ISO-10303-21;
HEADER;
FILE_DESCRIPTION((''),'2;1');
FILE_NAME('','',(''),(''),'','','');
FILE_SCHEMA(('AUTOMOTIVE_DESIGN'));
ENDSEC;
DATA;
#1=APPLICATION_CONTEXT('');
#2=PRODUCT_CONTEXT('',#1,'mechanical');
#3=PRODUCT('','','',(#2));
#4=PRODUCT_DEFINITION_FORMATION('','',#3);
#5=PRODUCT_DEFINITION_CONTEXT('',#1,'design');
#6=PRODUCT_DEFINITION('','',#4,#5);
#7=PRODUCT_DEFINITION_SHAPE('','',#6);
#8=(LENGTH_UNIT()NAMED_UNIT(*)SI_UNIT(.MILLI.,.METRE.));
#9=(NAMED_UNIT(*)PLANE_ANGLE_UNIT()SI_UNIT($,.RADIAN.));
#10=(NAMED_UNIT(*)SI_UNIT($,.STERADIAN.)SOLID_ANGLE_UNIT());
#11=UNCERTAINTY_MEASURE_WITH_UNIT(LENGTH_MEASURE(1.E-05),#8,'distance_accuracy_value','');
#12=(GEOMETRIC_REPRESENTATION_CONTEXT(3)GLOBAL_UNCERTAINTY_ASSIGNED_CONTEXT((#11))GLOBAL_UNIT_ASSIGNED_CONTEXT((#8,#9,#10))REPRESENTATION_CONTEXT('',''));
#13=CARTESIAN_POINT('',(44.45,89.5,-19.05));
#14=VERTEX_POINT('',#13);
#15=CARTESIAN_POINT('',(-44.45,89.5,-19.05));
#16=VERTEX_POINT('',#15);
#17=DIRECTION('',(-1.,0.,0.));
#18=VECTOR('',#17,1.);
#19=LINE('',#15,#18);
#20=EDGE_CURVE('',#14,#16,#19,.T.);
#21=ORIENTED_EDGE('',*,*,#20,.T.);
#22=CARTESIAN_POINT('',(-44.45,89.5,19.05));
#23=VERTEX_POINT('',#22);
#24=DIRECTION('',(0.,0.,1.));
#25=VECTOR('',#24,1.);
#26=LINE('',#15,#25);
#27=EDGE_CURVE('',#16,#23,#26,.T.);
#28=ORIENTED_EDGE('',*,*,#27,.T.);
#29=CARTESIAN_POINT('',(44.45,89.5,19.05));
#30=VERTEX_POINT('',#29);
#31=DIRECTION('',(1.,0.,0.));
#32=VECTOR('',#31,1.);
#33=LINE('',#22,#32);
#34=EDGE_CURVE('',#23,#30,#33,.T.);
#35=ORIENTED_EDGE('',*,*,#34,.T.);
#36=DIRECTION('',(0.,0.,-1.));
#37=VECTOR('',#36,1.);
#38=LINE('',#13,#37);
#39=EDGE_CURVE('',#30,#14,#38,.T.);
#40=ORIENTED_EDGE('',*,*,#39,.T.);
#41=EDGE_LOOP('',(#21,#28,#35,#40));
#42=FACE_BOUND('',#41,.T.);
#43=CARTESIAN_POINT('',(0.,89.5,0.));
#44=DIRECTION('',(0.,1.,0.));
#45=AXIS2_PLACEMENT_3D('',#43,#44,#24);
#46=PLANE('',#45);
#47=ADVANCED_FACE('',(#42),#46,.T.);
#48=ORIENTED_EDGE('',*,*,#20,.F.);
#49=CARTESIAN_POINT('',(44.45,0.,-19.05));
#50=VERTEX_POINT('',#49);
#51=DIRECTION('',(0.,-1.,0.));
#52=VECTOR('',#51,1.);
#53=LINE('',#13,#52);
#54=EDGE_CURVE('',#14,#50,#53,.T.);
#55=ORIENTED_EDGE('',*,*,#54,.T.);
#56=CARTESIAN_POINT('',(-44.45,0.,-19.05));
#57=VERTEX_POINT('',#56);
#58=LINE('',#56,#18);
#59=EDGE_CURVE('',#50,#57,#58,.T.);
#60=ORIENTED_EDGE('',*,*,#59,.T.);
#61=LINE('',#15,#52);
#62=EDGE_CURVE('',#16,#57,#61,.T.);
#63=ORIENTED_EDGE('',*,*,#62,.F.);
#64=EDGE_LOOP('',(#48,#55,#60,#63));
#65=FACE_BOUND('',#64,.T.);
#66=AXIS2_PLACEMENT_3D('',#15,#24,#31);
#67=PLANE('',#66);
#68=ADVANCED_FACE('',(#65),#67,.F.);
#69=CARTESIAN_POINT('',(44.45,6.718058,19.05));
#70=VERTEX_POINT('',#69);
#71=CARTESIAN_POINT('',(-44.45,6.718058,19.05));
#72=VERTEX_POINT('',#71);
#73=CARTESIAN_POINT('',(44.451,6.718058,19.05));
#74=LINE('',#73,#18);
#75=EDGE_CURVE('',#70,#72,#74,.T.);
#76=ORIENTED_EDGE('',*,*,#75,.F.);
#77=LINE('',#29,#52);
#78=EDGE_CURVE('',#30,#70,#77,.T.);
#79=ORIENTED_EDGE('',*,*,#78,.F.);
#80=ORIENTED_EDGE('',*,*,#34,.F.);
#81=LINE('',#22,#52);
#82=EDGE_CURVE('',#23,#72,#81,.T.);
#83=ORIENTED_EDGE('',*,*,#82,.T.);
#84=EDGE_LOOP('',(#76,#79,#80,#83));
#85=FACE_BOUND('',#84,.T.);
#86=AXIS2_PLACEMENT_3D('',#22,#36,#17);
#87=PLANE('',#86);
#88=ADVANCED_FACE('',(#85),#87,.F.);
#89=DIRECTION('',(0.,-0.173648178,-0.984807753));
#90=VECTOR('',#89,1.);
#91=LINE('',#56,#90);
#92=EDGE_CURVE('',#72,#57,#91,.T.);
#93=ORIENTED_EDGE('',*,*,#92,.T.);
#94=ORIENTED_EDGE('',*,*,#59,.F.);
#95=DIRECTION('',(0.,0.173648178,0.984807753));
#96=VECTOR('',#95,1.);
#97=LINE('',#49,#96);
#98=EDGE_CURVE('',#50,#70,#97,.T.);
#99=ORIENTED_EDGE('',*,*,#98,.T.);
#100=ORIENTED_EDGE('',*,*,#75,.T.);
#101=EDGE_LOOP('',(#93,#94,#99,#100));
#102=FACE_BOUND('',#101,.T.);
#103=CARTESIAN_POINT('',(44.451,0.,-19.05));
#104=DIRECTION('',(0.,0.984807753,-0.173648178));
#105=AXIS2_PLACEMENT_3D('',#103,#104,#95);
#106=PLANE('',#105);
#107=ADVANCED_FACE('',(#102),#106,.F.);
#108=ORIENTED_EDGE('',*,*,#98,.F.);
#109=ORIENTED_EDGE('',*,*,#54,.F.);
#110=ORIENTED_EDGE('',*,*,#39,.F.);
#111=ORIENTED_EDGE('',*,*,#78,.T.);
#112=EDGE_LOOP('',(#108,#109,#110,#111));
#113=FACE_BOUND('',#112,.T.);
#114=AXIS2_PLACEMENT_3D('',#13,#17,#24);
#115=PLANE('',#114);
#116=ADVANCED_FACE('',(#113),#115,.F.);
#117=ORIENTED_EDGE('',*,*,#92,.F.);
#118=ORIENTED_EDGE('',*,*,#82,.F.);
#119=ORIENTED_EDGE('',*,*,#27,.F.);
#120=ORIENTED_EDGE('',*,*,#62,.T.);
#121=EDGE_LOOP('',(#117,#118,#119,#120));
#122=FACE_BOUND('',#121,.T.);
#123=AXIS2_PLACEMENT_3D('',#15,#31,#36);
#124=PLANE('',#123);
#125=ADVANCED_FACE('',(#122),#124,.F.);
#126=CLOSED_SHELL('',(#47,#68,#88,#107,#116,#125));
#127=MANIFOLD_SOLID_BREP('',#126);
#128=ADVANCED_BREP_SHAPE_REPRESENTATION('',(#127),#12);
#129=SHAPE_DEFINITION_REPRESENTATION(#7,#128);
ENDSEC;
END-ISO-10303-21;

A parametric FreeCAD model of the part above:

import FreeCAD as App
import Part
import Sketcher
from FreeCAD import Vector
Q = App.Units.Quantity

doc = App.newDocument("Part")
body = doc.addObject("PartDesign::Body", "Body")

sketch1 = body.newObject("Sketcher::SketchObject", "Sketch")
sketch1.AttachmentSupport = (doc.getObject("XZ_Plane"), [""])
sketch1.MapMode = "FlatFace"
sketch1.addGeometry([
    Part.LineSegment(Vector(-44, -19, 0), Vector(-44, 19, 0)),
    Part.LineSegment(Vector(-44, 19, 0), Vector(44, 19, 0)),
    Part.LineSegment(Vector(44, 19, 0), Vector(44, -19, 0)),
    Part.LineSegment(Vector(44, -19, 0), Vector(-44, -19, 0)),
], False)
sketch1.addConstraint([
    Sketcher.Constraint("Coincident", 0, 2, 1, 1),
    Sketcher.Constraint("Coincident", 1, 2, 2, 1),
    Sketcher.Constraint("Coincident", 2, 2, 3, 1),
    Sketcher.Constraint("Coincident", 3, 2, 0, 1),
    Sketcher.Constraint("Vertical", 0),
    Sketcher.Constraint("Horizontal", 1),
    Sketcher.Constraint("Vertical", 2),
    Sketcher.Constraint("Horizontal", 3),
    Sketcher.Constraint("Symmetric", 0, 2, 2, 2, -1, 1),
    Sketcher.Constraint("DistanceX", 1, 1, 1, 2, Q("3.5 in")),
    Sketcher.Constraint("DistanceY", 0, 1, 0, 2, Q("1.5 in")),
])
pad1 = body.newObject("PartDesign::Pad", "Pad")
pad1.Profile = sketch1
pad1.Length = 89.5
pad1.Reversed = True

sketch2 = body.newObject("Sketcher::SketchObject", "Sketch001")
sketch2.AttachmentSupport = (doc.getObject("YZ_Plane"), [""])
sketch2.MapMode = "FlatFace"
sketch2.AttachmentOffset = App.Placement(Vector(0, 0, -1.75 * 25.4), App.Rotation())
sketch2.addGeometry([
    Part.LineSegment(Vector(7, 19, 0), Vector(0, -19, 0)),
    Part.LineSegment(Vector(0, -19, 0), Vector(0, 19, 0)),
    Part.LineSegment(Vector(0, 19, 0), Vector(7, 19, 0)),
], False)
sketch2.addConstraint([
    Sketcher.Constraint("Coincident", 0, 2, 1, 1),
    Sketcher.Constraint("Coincident", 1, 2, 2, 1),
    Sketcher.Constraint("Coincident", 2, 2, 0, 1),
    Sketcher.Constraint("Vertical", 1),
    Sketcher.Constraint("Horizontal", 2),
    Sketcher.Constraint("Symmetric", 0, 2, 1, 2, -1, 1),
    Sketcher.Constraint("DistanceY", 1, 1, 1, 2, Q("1.5 in")),
    Sketcher.Constraint("Angle", 0, Q("-100 deg")),
])
pocket1 = body.newObject("PartDesign::Pocket", "Pocket")
pocket1.Profile = sketch2
pocket1.Type = "UpToFirst"
pocket1.Reversed = True

doc.recompute()
